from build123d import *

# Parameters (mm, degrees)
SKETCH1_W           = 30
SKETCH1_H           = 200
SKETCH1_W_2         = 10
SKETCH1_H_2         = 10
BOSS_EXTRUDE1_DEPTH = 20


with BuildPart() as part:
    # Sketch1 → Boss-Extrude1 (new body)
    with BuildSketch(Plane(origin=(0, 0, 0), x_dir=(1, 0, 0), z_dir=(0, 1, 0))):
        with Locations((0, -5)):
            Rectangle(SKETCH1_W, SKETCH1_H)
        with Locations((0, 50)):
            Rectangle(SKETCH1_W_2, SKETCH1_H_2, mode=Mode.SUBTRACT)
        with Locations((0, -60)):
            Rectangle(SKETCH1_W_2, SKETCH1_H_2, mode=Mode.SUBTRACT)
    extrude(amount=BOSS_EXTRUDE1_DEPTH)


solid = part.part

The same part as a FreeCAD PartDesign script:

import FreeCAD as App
import Part
import Sketcher

V = App.Vector
Q = App.Units.Quantity


def add_polygon(sketch, points):
    """Adds a closed chain of lines whose ends are joined by coincident constraints."""
    first, n = sketch.GeometryCount, len(points)
    for a, b in zip(points, points[1:] + points[:1]):
        sketch.addGeometry(Part.LineSegment(App.Vector(*a, 0), App.Vector(*b, 0)), False)
    for i in range(n):
        sketch.addConstraint(Sketcher.Constraint("Coincident", first + i, 2, first + (i + 1) % n, 1))

doc = App.newDocument("Part")
body = doc.addObject("PartDesign::Body", "Body")

# Sketch on XZ plane
sketch1 = body.newObject("Sketcher::SketchObject", "Sketch")
sketch1.AttachmentSupport = (doc.getObject("XZ_Plane"), [""])
sketch1.MapMode = "FlatFace"
add_polygon(sketch1, [(-15, -95), (-15, 105), (15, 105), (15, -95)])  # lines 0-3
add_polygon(sketch1, [(5, 65), (-5, 65), (-5, 55), (5, 55)])  # lines 4-7
add_polygon(sketch1, [(5, -45), (-5, -45), (-5, -55), (5, -55)])  # lines 8-11
sketch1.addConstraint(Sketcher.Constraint("Vertical", 0))
sketch1.addConstraint(Sketcher.Constraint("Horizontal", 1))
sketch1.addConstraint(Sketcher.Constraint("Vertical", 2))
sketch1.addConstraint(Sketcher.Constraint("Horizontal", 3))
sketch1.addConstraint(Sketcher.Constraint("Horizontal", 4))
sketch1.addConstraint(Sketcher.Constraint("Vertical", 5))
sketch1.addConstraint(Sketcher.Constraint("Horizontal", 6))
sketch1.addConstraint(Sketcher.Constraint("Vertical", 7))
sketch1.addConstraint(Sketcher.Constraint("Horizontal", 8))
sketch1.addConstraint(Sketcher.Constraint("Vertical", 9))
sketch1.addConstraint(Sketcher.Constraint("Horizontal", 10))
sketch1.addConstraint(Sketcher.Constraint("Vertical", 11))
sketch1.addConstraint(Sketcher.Constraint("Symmetric", 6, 2, 9, 2, -1, 1))
sketch1.addConstraint(Sketcher.Constraint("Vertical", 5, 2, 8, 2))
sketch1.addConstraint(Sketcher.Constraint("Vertical", 7, 2, 10, 2))
sketch1.addConstraint(Sketcher.Constraint("Equal", 10, 5))
sketch1.addConstraint(Sketcher.Constraint("Equal", 7, 9))
sketch1.addConstraint(Sketcher.Constraint("DistanceX", 1, 1, 1, 2, Q("30 mm")))
sketch1.addConstraint(Sketcher.Constraint("DistanceX", 4, 2, 4, 1, Q("10 mm")))
sketch1.addConstraint(Sketcher.Constraint("DistanceY", 0, 1, 0, 2, Q("200 mm")))
sketch1.addConstraint(Sketcher.Constraint("DistanceX", 0, 2, -1, 1, Q("15 mm")))
sketch1.addConstraint(Sketcher.Constraint("DistanceY", -1, 1, 0, 2, Q("105 mm")))
sketch1.addConstraint(Sketcher.Constraint("DistanceY", -1, 1, 4, 2, Q("65 mm")))
pad1 = body.newObject("PartDesign::Pad", "Pad")
pad1.Profile = sketch1
pad1.Length = 20
pad1.Reversed = True

doc.recompute()
